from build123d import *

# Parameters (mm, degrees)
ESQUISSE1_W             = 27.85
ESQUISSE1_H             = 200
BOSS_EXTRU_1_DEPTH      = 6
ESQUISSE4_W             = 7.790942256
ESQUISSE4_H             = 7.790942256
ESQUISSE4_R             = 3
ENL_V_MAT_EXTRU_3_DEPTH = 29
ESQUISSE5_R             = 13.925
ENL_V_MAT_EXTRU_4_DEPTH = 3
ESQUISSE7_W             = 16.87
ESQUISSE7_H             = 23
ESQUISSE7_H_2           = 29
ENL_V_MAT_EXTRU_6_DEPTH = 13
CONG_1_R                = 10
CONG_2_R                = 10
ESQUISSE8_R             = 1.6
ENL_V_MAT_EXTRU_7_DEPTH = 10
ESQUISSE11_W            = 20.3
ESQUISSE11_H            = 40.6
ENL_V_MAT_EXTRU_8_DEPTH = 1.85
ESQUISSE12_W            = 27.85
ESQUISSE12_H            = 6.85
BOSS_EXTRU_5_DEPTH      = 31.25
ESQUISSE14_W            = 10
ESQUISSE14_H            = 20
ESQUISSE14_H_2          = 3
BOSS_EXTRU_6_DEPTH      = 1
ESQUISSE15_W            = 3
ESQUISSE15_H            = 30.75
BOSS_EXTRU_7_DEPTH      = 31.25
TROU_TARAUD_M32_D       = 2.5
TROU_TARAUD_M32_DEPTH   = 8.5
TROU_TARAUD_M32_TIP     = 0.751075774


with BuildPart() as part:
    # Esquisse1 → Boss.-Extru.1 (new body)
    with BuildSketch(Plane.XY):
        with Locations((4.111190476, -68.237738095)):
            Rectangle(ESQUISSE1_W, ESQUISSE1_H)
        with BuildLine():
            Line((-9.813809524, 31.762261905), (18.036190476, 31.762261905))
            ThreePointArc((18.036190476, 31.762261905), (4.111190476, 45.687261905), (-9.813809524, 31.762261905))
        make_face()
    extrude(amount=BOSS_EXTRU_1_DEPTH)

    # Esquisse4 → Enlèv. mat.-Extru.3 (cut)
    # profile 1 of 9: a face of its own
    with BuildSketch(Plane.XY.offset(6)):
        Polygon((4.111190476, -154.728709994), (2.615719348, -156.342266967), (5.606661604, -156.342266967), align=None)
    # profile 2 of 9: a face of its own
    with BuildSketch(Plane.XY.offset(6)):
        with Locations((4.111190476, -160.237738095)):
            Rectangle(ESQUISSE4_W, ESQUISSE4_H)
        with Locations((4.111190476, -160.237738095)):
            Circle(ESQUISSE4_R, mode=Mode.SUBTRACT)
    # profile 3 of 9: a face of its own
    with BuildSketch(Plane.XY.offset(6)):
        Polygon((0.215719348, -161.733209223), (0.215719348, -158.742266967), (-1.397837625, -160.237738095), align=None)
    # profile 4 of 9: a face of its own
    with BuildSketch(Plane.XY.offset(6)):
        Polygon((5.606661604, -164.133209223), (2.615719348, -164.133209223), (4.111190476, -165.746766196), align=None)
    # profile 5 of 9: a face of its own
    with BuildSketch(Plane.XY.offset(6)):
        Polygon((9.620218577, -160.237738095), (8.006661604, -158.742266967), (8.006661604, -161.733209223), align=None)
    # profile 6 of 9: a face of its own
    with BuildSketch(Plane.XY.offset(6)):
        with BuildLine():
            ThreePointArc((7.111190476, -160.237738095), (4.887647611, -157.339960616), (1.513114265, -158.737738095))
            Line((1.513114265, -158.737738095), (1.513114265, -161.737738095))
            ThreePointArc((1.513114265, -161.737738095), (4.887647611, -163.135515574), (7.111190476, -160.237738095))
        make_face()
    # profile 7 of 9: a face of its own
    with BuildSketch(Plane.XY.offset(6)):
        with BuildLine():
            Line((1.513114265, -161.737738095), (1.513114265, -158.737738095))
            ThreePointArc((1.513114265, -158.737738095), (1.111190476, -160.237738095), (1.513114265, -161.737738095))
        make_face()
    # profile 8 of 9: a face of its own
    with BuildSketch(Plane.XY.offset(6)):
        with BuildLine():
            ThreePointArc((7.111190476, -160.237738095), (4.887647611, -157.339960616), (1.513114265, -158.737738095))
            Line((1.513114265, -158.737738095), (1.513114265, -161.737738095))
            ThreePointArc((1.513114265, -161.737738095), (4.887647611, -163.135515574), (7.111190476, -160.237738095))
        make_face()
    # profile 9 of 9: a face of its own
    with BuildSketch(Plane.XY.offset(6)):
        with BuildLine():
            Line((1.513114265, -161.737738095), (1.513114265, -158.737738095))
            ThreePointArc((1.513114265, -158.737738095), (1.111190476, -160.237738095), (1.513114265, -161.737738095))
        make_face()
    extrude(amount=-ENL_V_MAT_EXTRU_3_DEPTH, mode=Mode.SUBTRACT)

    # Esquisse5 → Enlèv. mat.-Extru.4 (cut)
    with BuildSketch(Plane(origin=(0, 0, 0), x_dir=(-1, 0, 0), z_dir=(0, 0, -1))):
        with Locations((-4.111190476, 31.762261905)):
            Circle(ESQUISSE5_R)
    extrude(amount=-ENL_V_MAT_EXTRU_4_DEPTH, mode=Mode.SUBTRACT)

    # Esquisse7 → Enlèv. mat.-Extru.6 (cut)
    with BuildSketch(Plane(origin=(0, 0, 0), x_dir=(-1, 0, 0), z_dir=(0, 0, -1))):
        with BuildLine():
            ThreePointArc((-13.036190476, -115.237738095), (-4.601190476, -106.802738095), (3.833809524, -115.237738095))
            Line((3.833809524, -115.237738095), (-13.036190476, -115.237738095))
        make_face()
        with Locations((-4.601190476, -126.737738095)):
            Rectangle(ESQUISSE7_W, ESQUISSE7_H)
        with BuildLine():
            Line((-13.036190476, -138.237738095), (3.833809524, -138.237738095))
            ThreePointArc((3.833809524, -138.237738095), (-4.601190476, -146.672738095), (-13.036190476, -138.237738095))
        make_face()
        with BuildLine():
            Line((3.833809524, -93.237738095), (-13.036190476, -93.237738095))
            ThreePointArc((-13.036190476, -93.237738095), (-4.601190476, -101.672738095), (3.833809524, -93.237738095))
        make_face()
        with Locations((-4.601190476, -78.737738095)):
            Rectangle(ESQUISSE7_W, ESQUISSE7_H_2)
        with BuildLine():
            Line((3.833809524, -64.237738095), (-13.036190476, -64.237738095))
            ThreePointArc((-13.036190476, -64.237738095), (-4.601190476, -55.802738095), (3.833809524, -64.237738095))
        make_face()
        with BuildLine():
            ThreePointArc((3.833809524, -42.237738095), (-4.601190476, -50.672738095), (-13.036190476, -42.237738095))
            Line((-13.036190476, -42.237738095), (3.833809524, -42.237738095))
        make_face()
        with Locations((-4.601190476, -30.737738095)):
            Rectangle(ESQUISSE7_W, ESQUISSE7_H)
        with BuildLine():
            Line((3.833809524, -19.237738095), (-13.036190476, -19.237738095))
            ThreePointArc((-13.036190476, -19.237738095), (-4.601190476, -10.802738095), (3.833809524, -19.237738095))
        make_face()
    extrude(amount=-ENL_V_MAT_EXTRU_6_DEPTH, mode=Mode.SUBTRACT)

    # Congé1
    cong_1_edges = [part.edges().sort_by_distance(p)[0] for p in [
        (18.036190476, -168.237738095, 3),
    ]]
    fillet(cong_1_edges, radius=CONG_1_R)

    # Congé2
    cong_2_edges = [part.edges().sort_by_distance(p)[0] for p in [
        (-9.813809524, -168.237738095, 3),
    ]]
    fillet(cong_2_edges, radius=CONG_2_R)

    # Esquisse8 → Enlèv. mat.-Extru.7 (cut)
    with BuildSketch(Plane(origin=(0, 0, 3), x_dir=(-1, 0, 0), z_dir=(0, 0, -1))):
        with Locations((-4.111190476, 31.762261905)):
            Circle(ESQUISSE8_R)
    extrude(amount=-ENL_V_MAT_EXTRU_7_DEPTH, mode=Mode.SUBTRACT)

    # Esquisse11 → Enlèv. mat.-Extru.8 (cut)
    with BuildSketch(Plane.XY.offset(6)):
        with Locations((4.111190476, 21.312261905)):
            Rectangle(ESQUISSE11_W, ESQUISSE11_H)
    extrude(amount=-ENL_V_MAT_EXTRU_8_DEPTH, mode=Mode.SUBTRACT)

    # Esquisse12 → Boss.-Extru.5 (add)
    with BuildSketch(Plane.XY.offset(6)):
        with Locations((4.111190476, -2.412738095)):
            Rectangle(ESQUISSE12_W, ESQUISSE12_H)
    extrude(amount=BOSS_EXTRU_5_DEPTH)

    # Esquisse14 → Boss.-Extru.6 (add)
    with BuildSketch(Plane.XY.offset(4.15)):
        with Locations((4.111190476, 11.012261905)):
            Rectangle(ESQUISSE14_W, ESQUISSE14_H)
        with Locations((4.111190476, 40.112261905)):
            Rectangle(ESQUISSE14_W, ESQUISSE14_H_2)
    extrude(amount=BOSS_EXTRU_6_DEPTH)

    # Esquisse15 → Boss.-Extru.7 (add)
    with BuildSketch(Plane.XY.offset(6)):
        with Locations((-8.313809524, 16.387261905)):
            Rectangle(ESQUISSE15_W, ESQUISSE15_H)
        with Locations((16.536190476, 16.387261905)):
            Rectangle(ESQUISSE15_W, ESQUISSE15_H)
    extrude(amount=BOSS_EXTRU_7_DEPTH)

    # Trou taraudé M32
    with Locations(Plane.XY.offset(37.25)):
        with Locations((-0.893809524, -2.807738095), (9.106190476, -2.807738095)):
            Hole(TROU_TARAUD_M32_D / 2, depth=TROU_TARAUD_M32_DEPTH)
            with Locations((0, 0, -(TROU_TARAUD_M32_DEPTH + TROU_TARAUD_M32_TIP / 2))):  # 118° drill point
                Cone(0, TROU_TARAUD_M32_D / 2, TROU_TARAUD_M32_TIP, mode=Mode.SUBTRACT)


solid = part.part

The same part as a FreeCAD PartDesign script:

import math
import FreeCAD as App
import Part
import Sketcher
from FreeCAD import Vector
Q = App.Units.Quantity


def edges_at(feature, points):
    """Names of the edges that pass closest to the given points."""
    edges = feature.Shape.Edges
    near = lambda p: min(range(len(edges)), key=lambda i: edges[i].distToShape(Part.Vertex(*p))[0])
    return sorted({f"Edge{near(p) + 1}" for p in points})


def add_polygon(sketch, points):
    """Adds a closed chain of lines whose ends are joined by coincident constraints."""
    first, n = sketch.GeometryCount, len(points)
    for a, b in zip(points, points[1:] + points[:1]):
        sketch.addGeometry(Part.LineSegment(App.Vector(*a, 0), App.Vector(*b, 0)), False)
    for i in range(n):
        sketch.addConstraint(Sketcher.Constraint("Coincident", first + i, 2, first + (i + 1) % n, 1))

doc = App.newDocument("Part")
body = doc.addObject("PartDesign::Body", "Body")

# Sketch on XY plane
sketch1 = body.newObject("Sketcher::SketchObject", "Sketch")
sketch1.AttachmentSupport = (doc.getObject("XY_Plane"), [""])
sketch1.MapMode = "FlatFace"
sketch1.addGeometry(Part.LineSegment(Vector(-10, 32, 0), Vector(-10, -168, 0)), False)
sketch1.addGeometry(Part.LineSegment(Vector(-10, -168, 0), Vector(18, -168, 0)), False)
sketch1.addGeometry(Part.LineSegment(Vector(18, -168, 0), Vector(18, 32, 0)), False)
sketch1.addGeometry(Part.ArcOfCircle(Part.Circle(Vector(4, 32, 0), Vector(0, 0, 1), 14), math.radians(0), math.radians(180)), False)
sketch1.addConstraint(Sketcher.Constraint("Coincident", 0, 2, 1, 1))
sketch1.addConstraint(Sketcher.Constraint("Coincident", 1, 2, 2, 1))
sketch1.addConstraint(Sketcher.Constraint("Tangent", 2, 2, 3, 1))
sketch1.addConstraint(Sketcher.Constraint("Tangent", 3, 2, 0, 1))
sketch1.addConstraint(Sketcher.Constraint("Vertical", 0))
sketch1.addConstraint(Sketcher.Constraint("Horizontal", 1))
sketch1.addConstraint(Sketcher.Constraint("Vertical", 2))
sketch1.addConstraint(Sketcher.Constraint("DistanceY", 0, 2, 0, 1, Q("200 mm")))
sketch1.addConstraint(Sketcher.Constraint("Radius", 3, Q("13.925 mm")))
sketch1.addConstraint(Sketcher.Constraint("DistanceX", -1, 1, 3, 3, Q("4.11119 mm")))
sketch1.addConstraint(Sketcher.Constraint("DistanceY", -1, 1, 3, 3, Q("31.762262 mm")))
pad1 = body.newObject("PartDesign::Pad", "Pad")
pad1.Profile = sketch1
pad1.Length = 6

# Sketch on XY plane
sketch2 = body.newObject("Sketcher::SketchObject", "Sketch001")
sketch2.AttachmentSupport = (doc.getObject("XY_Plane"), [""])
sketch2.MapMode = "FlatFace"
sketch2.AttachmentOffset = App.Placement(Vector(0, 0, 6), App.Rotation())
add_polygon(sketch2, [(4.1, -154.7), (2.6, -156.3), (0.2, -156.3), (0.2, -158.7), (-1.4, -160.2), (0.2, -161.7), (0.2, -164.1), (2.6, -164.1), (4.1, -165.7), (5.6, -164.1), (8, -164.1), (8, -161.7), (9.6, -160.2), (8, -158.7), (8, -156.3), (5.6, -156.3)])  # lines 0-15
sketch2.addConstraint(Sketcher.Constraint("Horizontal", 1))
sketch2.addConstraint(Sketcher.Constraint("Vertical", 2))
sketch2.addConstraint(Sketcher.Constraint("Vertical", 5))
sketch2.addConstraint(Sketcher.Constraint("Horizontal", 6))
sketch2.addConstraint(Sketcher.Constraint("Horizontal", 9))
sketch2.addConstraint(Sketcher.Constraint("Vertical", 10))
sketch2.addConstraint(Sketcher.Constraint("Vertical", 13))
sketch2.addConstraint(Sketcher.Constraint("Horizontal", 14))
sketch2.addConstraint(Sketcher.Constraint("Perpendicular", 0, 4))
sketch2.addConstraint(Sketcher.Constraint("Perpendicular", 3, 7))
sketch2.addConstraint(Sketcher.Constraint("Perpendicular", 4, 8))
sketch2.addConstraint(Sketcher.Constraint("Perpendicular", 7, 11))
sketch2.addConstraint(Sketcher.Constraint("Perpendicular", 8, 12))
sketch2.addConstraint(Sketcher.Constraint("Perpendicular", 11, 15))
sketch2.addConstraint(Sketcher.Constraint("Horizontal", 6, 2, 8, 2))
sketch2.addConstraint(Sketcher.Constraint("Horizontal", 4, 2, 10, 2))
sketch2.addConstraint(Sketcher.Constraint("Horizontal", 3, 2, 11, 2))
sketch2.addConstraint(Sketcher.Constraint("Horizontal", 2, 2, 12, 2))
sketch2.addConstraint(Sketcher.Constraint("Horizontal", 1, 2, 13, 2))
sketch2.addConstraint(Sketcher.Constraint("Vertical", 2, 2, 4, 2))
sketch2.addConstraint(Sketcher.Constraint("Vertical", 0, 2, 6, 2))
sketch2.addConstraint(Sketcher.Constraint("Vertical", 10, 2, 12, 2))
sketch2.addConstraint(Sketcher.Constraint("Vertical", 8, 2, 14, 2))
sketch2.addConstraint(Sketcher.Constraint("Equal", 6, 9))
sketch2.addConstraint(Sketcher.Constraint("Equal", 14, 2))
sketch2.addConstraint(Sketcher.Constraint("Equal", 2, 5))
sketch2.addConstraint(Sketcher.Constraint("Equal", 0, 3))
sketch2.addConstraint(Sketcher.Constraint("DistanceX", 1, 2, 1, 1, Q("2.4 mm")))
sketch2.addConstraint(Sketcher.Constraint("Distance", 0, Q("2.2 mm")))
sketch2.addConstraint(Sketcher.Constraint("DistanceY", 7, 2, 2, 2, Q("7.004499 mm")))
sketch2.addConstraint(Sketcher.Constraint("DistanceX", -1, 1, 0, 2, Q("2.615719 mm")))
sketch2.addConstraint(Sketcher.Constraint("DistanceY", 3, 2, -1, 1, Q("160.237738 mm")))
pocket1 = body.newObject("PartDesign::Pocket", "Pocket")
pocket1.Profile = sketch2
pocket1.Length = 29

# Sketch on XY plane
sketch3 = body.newObject("Sketcher::SketchObject", "Sketch002")
sketch3.AttachmentSupport = (doc.getObject("XY_Plane"), [""])
sketch3.MapMode = "FlatFace"
sketch3.addGeometry(Part.Circle(Vector(4, 32, 0), Vector(0, 0, 1), 14), False)
sketch3.addConstraint(Sketcher.Constraint("Diameter", 0, Q("27.85 mm")))
sketch3.addConstraint(Sketcher.Constraint("DistanceX", -1, 1, 0, 3, Q("4.11119 mm")))
sketch3.addConstraint(Sketcher.Constraint("DistanceY", -1, 1, 0, 3, Q("31.762262 mm")))
pocket2 = body.newObject("PartDesign::Pocket", "Pocket001")
pocket2.Profile = sketch3
pocket2.Length = 3
pocket2.Reversed = True

# Sketch on XY plane
sketch4 = body.newObject("Sketcher::SketchObject", "Sketch003")
sketch4.AttachmentSupport = (doc.getObject("XY_Plane"), [""])
sketch4.MapMode = "FlatFace"
sketch4.addGeometry(Part.ArcOfCircle(Part.Circle(Vector(5, -115, 0), Vector(0, 0, 1), 8), math.radians(0), math.radians(180)), False)
sketch4.addGeometry(Part.LineSegment(Vector(13, -115, 0), Vector(13, -138, 0)), False)
sketch4.addGeometry(Part.ArcOfCircle(Part.Circle(Vector(5, -138, 0), Vector(0, 0, 1), 8), math.radians(180), math.radians(360)), False)
sketch4.addGeometry(Part.LineSegment(Vector(-4, -138, 0), Vector(-4, -115, 0)), False)
sketch4.addGeometry(Part.ArcOfCircle(Part.Circle(Vector(5, -93, 0), Vector(0, 0, 1), 8), math.radians(180), math.radians(360)), False)
sketch4.addGeometry(Part.LineSegment(Vector(-4, -93, 0), Vector(-4, -64, 0)), False)
sketch4.addGeometry(Part.ArcOfCircle(Part.Circle(Vector(5, -64, 0), Vector(0, 0, 1), 8), math.radians(0), math.radians(180)), False)
sketch4.addGeometry(Part.LineSegment(Vector(13, -64, 0), Vector(13, -93, 0)), False)
sketch4.addGeometry(Part.ArcOfCircle(Part.Circle(Vector(5, -42, 0), Vector(0, 0, 1), 8), math.radians(180), math.radians(360)), False)
sketch4.addGeometry(Part.LineSegment(Vector(-4, -42, 0), Vector(-4, -19, 0)), False)
sketch4.addGeometry(Part.ArcOfCircle(Part.Circle(Vector(5, -19, 0), Vector(0, 0, 1), 8), math.radians(0), math.radians(180)), False)
sketch4.addGeometry(Part.LineSegment(Vector(13, -19, 0), Vector(13, -42, 0)), False)
sketch4.addConstraint(Sketcher.Constraint("Tangent", 0, 1, 1, 1))
sketch4.addConstraint(Sketcher.Constraint("Tangent", 1, 2, 2, 2))
sketch4.addConstraint(Sketcher.Constraint("Tangent", 2, 1, 3, 1))
sketch4.addConstraint(Sketcher.Constraint("Tangent", 3, 2, 0, 2))
sketch4.addConstraint(Sketcher.Constraint("Tangent", 4, 1, 5, 1))
sketch4.addConstraint(Sketcher.Constraint("Tangent", 5, 2, 6, 2))
sketch4.addConstraint(Sketcher.Constraint("Tangent", 6, 1, 7, 1))
sketch4.addConstraint(Sketcher.Constraint("Tangent", 7, 2, 4, 2))
sketch4.addConstraint(Sketcher.Constraint("Tangent", 8, 1, 9, 1))
sketch4.addConstraint(Sketcher.Constraint("Tangent", 9, 2, 10, 2))
sketch4.addConstraint(Sketcher.Constraint("Tangent", 10, 1, 11, 1))
sketch4.addConstraint(Sketcher.Constraint("Tangent", 11, 2, 8, 2))
sketch4.addConstraint(Sketcher.Constraint("Vertical", 1))
sketch4.addConstraint(Sketcher.Constraint("Vertical", 3))
sketch4.addConstraint(Sketcher.Constraint("Vertical", 5))
sketch4.addConstraint(Sketcher.Constraint("Vertical", 7))
sketch4.addConstraint(Sketcher.Constraint("Vertical", 9))
sketch4.addConstraint(Sketcher.Constraint("Vertical", 11))
sketch4.addConstraint(Sketcher.Constraint("Equal", 2, 4))
sketch4.addConstraint(Sketcher.Constraint("Equal", 6, 8))
sketch4.addConstraint(Sketcher.Constraint("Vertical", 2, 3, 4, 3))
sketch4.addConstraint(Sketcher.Constraint("Vertical", 6, 3, 8, 3))
sketch4.addConstraint(Sketcher.Constraint("Equal", 3, 9))
sketch4.addConstraint(Sketcher.Constraint("DistanceY", 1, 2, 1, 1, Q("23 mm")))
sketch4.addConstraint(Sketcher.Constraint("DistanceY", 5, 1, 5, 2, Q("29 mm")))
sketch4.addConstraint(Sketcher.Constraint("Radius", 0, Q("8.435 mm")))
sketch4.addConstraint(Sketcher.Constraint("DistanceY", 0, 3, 4, 3, Q("22 mm")))
sketch4.addConstraint(Sketcher.Constraint("DistanceY", 6, 3, 8, 3, Q("22 mm")))
sketch4.addConstraint(Sketcher.Constraint("DistanceX", -1, 1, 0, 3, Q("4.60119 mm")))
sketch4.addConstraint(Sketcher.Constraint("DistanceY", 0, 3, -1, 1, Q("115.237738 mm")))
pocket3 = body.newObject("PartDesign::Pocket", "Pocket002")
pocket3.Profile = sketch4
pocket3.Length = 13
pocket3.Reversed = True
doc.recompute()

fillet = body.newObject("PartDesign::Fillet", "Fillet")
fillet.Base = (pocket3, edges_at(pocket3, [(18.036, -168.238, 3)]))
fillet.Radius = 10
doc.recompute()

fillet2 = body.newObject("PartDesign::Fillet", "Fillet001")
fillet2.Base = (fillet, edges_at(fillet, [(-9.814, -168.238, 3)]))
fillet2.Radius = 10

# Sketch on XY plane
sketch5 = body.newObject("Sketcher::SketchObject", "Sketch004")
sketch5.AttachmentSupport = (doc.getObject("XY_Plane"), [""])
sketch5.MapMode = "FlatFace"
sketch5.AttachmentOffset = App.Placement(Vector(0, 0, 3), App.Rotation())
sketch5.addGeometry(Part.Circle(Vector(4.1, 31.8, 0), Vector(0, 0, 1), 1.6), False)
sketch5.addConstraint(Sketcher.Constraint("Diameter", 0, Q("3.2 mm")))
sketch5.addConstraint(Sketcher.Constraint("DistanceX", -1, 1, 0, 3, Q("4.11119 mm")))
sketch5.addConstraint(Sketcher.Constraint("DistanceY", -1, 1, 0, 3, Q("31.762262 mm")))
pocket4 = body.newObject("PartDesign::Pocket", "Pocket003")
pocket4.Profile = sketch5
pocket4.Length = 10
pocket4.Reversed = True

# Sketch on XY plane
sketch6 = body.newObject("Sketcher::SketchObject", "Sketch005")
sketch6.AttachmentSupport = (doc.getObject("XY_Plane"), [""])
sketch6.MapMode = "FlatFace"
sketch6.AttachmentOffset = App.Placement(Vector(0, 0, 6), App.Rotation())
add_polygon(sketch6, [(-6, 42), (-6, 1), (14, 1), (14, 42)])  # lines 0-3
sketch6.addConstraint(Sketcher.Constraint("Vertical", 0))
sketch6.addConstraint(Sketcher.Constraint("Horizontal", 1))
sketch6.addConstraint(Sketcher.Constraint("Vertical", 2))
sketch6.addConstraint(Sketcher.Constraint("Horizontal", 3))
sketch6.addConstraint(Sketcher.Constraint("DistanceX", 1, 1, 1, 2, Q("20.3 mm")))
sketch6.addConstraint(Sketcher.Constraint("DistanceY", 0, 2, 0, 1, Q("40.6 mm")))
sketch6.addConstraint(Sketcher.Constraint("DistanceX", 0, 2, -1, 1, Q("6.03881 mm")))
sketch6.addConstraint(Sketcher.Constraint("DistanceY", -1, 1, 0, 2, Q("1.012262 mm")))
pocket5 = body.newObject("PartDesign::Pocket", "Pocket004")
pocket5.Profile = sketch6
pocket5.Length = 1.85

# Sketch on XY plane
sketch7 = body.newObject("Sketcher::SketchObject", "Sketch006")
sketch7.AttachmentSupport = (doc.getObject("XY_Plane"), [""])
sketch7.MapMode = "FlatFace"
sketch7.AttachmentOffset = App.Placement(Vector(0, 0, 6), App.Rotation())
add_polygon(sketch7, [(-10, 1), (-10, -6), (18, -6), (18, 1)])  # lines 0-3
sketch7.addConstraint(Sketcher.Constraint("Vertical", 0))
sketch7.addConstraint(Sketcher.Constraint("Horizontal", 1))
sketch7.addConstraint(Sketcher.Constraint("Vertical", 2))
sketch7.addConstraint(Sketcher.Constraint("Horizontal", 3))
sketch7.addConstraint(Sketcher.Constraint("DistanceX", 1, 1, 1, 2, Q("27.85 mm")))
sketch7.addConstraint(Sketcher.Constraint("DistanceY", 0, 2, 0, 1, Q("6.85 mm")))
sketch7.addConstraint(Sketcher.Constraint("DistanceX", 0, 2, -1, 1, Q("9.81381 mm")))
sketch7.addConstraint(Sketcher.Constraint("DistanceY", 0, 2, -1, 1, Q("5.837738 mm")))
pad2 = body.newObject("PartDesign::Pad", "Pad001")
pad2.Profile = sketch7
pad2.Length = 31.25

# Sketch on XY plane
sketch8 = body.newObject("Sketcher::SketchObject", "Sketch007")
sketch8.AttachmentSupport = (doc.getObject("XY_Plane"), [""])
sketch8.MapMode = "FlatFace"
sketch8.AttachmentOffset = App.Placement(Vector(0, 0, 4.15), App.Rotation())
add_polygon(sketch8, [(-0.9, 21), (-0.9, 1), (9.1, 1), (9.1, 21)])  # lines 0-3
add_polygon(sketch8, [(-0.9, 41.6), (-0.9, 38.6), (9.1, 38.6), (9.1, 41.6)])  # lines 4-7
sketch8.addConstraint(Sketcher.Constraint("Vertical", 0))
sketch8.addConstraint(Sketcher.Constraint("Horizontal", 1))
sketch8.addConstraint(Sketcher.Constraint("Vertical", 2))
sketch8.addConstraint(Sketcher.Constraint("Horizontal", 3))
sketch8.addConstraint(Sketcher.Constraint("Vertical", 4))
sketch8.addConstraint(Sketcher.Constraint("Horizontal", 5))
sketch8.addConstraint(Sketcher.Constraint("Vertical", 6))
sketch8.addConstraint(Sketcher.Constraint("Horizontal", 7))
sketch8.addConstraint(Sketcher.Constraint("Vertical", 3, 2, 4, 2))
sketch8.addConstraint(Sketcher.Constraint("Vertical", 2, 2, 5, 2))
sketch8.addConstraint(Sketcher.Constraint("DistanceX", 1, 1, 1, 2, Q("10 mm")))
sketch8.addConstraint(Sketcher.Constraint("DistanceY", 0, 2, 0, 1, Q("20 mm")))
sketch8.addConstraint(Sketcher.Constraint("DistanceY", 4, 2, 4, 1, Q("3 mm")))
sketch8.addConstraint(Sketcher.Constraint("DistanceY", 3, 2, 4, 2, Q("17.6 mm")))
sketch8.addConstraint(Sketcher.Constraint("DistanceX", 0, 2, -1, 1, Q("0.88881 mm")))
sketch8.addConstraint(Sketcher.Constraint("DistanceY", -1, 1, 0, 2, Q("1.012262 mm")))
pad3 = body.newObject("PartDesign::Pad", "Pad002")
pad3.Profile = sketch8
pad3.Length = 1

# Sketch on XY plane
sketch9 = body.newObject("Sketcher::SketchObject", "Sketch008")
sketch9.AttachmentSupport = (doc.getObject("XY_Plane"), [""])
sketch9.MapMode = "FlatFace"
sketch9.AttachmentOffset = App.Placement(Vector(0, 0, 6), App.Rotation())
add_polygon(sketch9, [(-9.8, 31.8), (-9.8, 1), (-6.8, 1), (-6.8, 31.8)])  # lines 0-3
add_polygon(sketch9, [(15, 31.8), (15, 1), (18, 1), (18, 31.8)])  # lines 4-7
sketch9.addConstraint(Sketcher.Constraint("Vertical", 0))
sketch9.addConstraint(Sketcher.Constraint("Horizontal", 1))
sketch9.addConstraint(Sketcher.Constraint("Vertical", 2))
sketch9.addConstraint(Sketcher.Constraint("Horizontal", 3))
sketch9.addConstraint(Sketcher.Constraint("Vertical", 4))
sketch9.addConstraint(Sketcher.Constraint("Horizontal", 5))
sketch9.addConstraint(Sketcher.Constraint("Vertical", 6))
sketch9.addConstraint(Sketcher.Constraint("Horizontal", 7))
sketch9.addConstraint(Sketcher.Constraint("Horizontal", 1, 2, 4, 2))
sketch9.addConstraint(Sketcher.Constraint("Horizontal", 3, 2, 6, 2))
sketch9.addConstraint(Sketcher.Constraint("Equal", 3, 5))
sketch9.addConstraint(Sketcher.Constraint("DistanceX", 1, 1, 1, 2, Q("3 mm")))
sketch9.addConstraint(Sketcher.Constraint("DistanceY", 0, 2, 0, 1, Q("30.75 mm")))
sketch9.addConstraint(Sketcher.Constraint("DistanceX", 1, 2, 4, 2, Q("21.85 mm")))
sketch9.addConstraint(Sketcher.Constraint("DistanceX", 0, 2, -1, 1, Q("9.81381 mm")))
sketch9.addConstraint(Sketcher.Constraint("DistanceY", -1, 1, 0, 2, Q("1.012262 mm")))
pad4 = body.newObject("PartDesign::Pad", "Pad003")
pad4.Profile = sketch9
pad4.Length = 31.25

# Sketch on XY plane
sketch10 = body.newObject("Sketcher::SketchObject", "Sketch009")
sketch10.AttachmentSupport = (doc.getObject("XY_Plane"), [""])
sketch10.MapMode = "FlatFace"
sketch10.AttachmentOffset = App.Placement(Vector(0, 0, 37.25), App.Rotation())
sketch10.addGeometry(Part.Circle(Vector(-0.9, -2.8, 0), Vector(0, 0, 1), 1.2), False)
sketch10.addGeometry(Part.Circle(Vector(9.1, -2.8, 0), Vector(0, 0, 1), 1.2), False)
sketch10.addConstraint(Sketcher.Constraint("Equal", 0, 1))
sketch10.addConstraint(Sketcher.Constraint("Horizontal", 0, 3, 1, 3))
sketch10.addConstraint(Sketcher.Constraint("Diameter", 0, Q("2.5 mm")))
sketch10.addConstraint(Sketcher.Constraint("DistanceX", 0, 3, 1, 3, Q("10 mm")))
sketch10.addConstraint(Sketcher.Constraint("DistanceX", 0, 3, -1, 1, Q("0.89381 mm")))
sketch10.addConstraint(Sketcher.Constraint("DistanceY", 0, 3, -1, 1, Q("2.807738 mm")))
doc.recompute()
hole = body.newObject("PartDesign::Hole", "Hole")
hole.Profile = sketch10
hole.ThreadType = "None"
hole.Diameter = 2.5
hole.DepthType = "Dimension"
hole.Depth = 8.5
hole.DrillPoint = "Angled"
hole.DrillPointAngle = 118

doc.recompute()
